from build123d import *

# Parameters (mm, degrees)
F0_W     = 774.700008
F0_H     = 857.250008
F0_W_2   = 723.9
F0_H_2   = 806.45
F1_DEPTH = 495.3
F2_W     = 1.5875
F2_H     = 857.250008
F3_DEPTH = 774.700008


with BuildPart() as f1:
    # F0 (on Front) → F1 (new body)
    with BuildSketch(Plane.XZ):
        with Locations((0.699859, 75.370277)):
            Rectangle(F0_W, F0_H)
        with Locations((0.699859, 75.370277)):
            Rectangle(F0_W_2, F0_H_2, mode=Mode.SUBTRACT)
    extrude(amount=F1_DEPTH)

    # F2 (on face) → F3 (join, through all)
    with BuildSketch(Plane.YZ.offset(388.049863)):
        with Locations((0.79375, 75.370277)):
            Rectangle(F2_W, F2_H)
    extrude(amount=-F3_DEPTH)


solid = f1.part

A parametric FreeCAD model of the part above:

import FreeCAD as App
import Part
import Sketcher

V = App.Vector
Q = App.Units.Quantity


def add_polygon(sketch, points):
    """Adds a closed chain of lines whose ends are joined by coincident constraints."""
    first, n = sketch.GeometryCount, len(points)
    for a, b in zip(points, points[1:] + points[:1]):
        sketch.addGeometry(Part.LineSegment(App.Vector(*a, 0), App.Vector(*b, 0)), False)
    for i in range(n):
        sketch.addConstraint(Sketcher.Constraint("Coincident", first + i, 2, first + (i + 1) % n, 1))

doc = App.newDocument("Part")
body = doc.addObject("PartDesign::Body", "Body")

# Sketch on XZ plane
sketch1 = body.newObject("Sketcher::SketchObject", "Sketch")
sketch1.AttachmentSupport = (doc.getObject("XZ_Plane"), [""])
sketch1.MapMode = "FlatFace"
add_polygon(sketch1, [(-387, 504), (-387, -353), (388, -353), (388, 504)])  # lines 0-3
add_polygon(sketch1, [(363, -328), (-361, -328), (-361, 479), (363, 479)])  # lines 4-7
sketch1.addConstraint([
    Sketcher.Constraint("Vertical", 0),
    Sketcher.Constraint("Horizontal", 1),
    Sketcher.Constraint("Vertical", 2),
    Sketcher.Constraint("Horizontal", 3),
    Sketcher.Constraint("Horizontal", 4),
    Sketcher.Constraint("Vertical", 5),
    Sketcher.Constraint("Horizontal", 6),
    Sketcher.Constraint("Vertical", 7),
    Sketcher.Constraint("DistanceX", 4, 2, 4, 1, Q("28.5 in")),
    Sketcher.Constraint("DistanceX", 0, 2, 4, 2, Q("1.0000002 in")),
    Sketcher.Constraint("DistanceY", 0, 2, 4, 2, Q("1.0000002 in")),
    Sketcher.Constraint("DistanceY", 5, 2, 3, 2, Q("1.0000002 in")),
    Sketcher.Constraint("DistanceX", 6, 2, 2, 2, Q("1.0000002 in")),
    Sketcher.Constraint("DistanceY", 5, 1, 5, 2, Q("31.75 in")),
    Sketcher.Constraint("DistanceY", -1, 1, 2, 2, Q("503.995281 mm")),
    Sketcher.Constraint("DistanceX", 4, 2, -1, 1, Q("361.250141 mm")),
])
pad1 = body.newObject("PartDesign::Pad", "Pad")
pad1.Profile = sketch1
pad1.Length = Q("19.5 in")

# Sketch on YZ plane
sketch2 = body.newObject("Sketcher::SketchObject", "Sketch001")
sketch2.AttachmentSupport = (doc.getObject("YZ_Plane"), [""])
sketch2.MapMode = "FlatFace"
sketch2.AttachmentOffset = App.Placement(V(0, 0, 388.049863), App.Rotation())
add_polygon(sketch2, [(0, 504), (0, -353.3), (1.6, -353.3), (1.6, 504)])  # lines 0-3
sketch2.addConstraint([
    Sketcher.Constraint("Vertical", 0),
    Sketcher.Constraint("Horizontal", 1),
    Sketcher.Constraint("Vertical", 2),
    Sketcher.Constraint("Horizontal", 3),
    Sketcher.Constraint("PointOnObject", 0, 2, -2),
    Sketcher.Constraint("DistanceX", 1, 1, 1, 2, Q("0.0625 in")),
    Sketcher.Constraint("DistanceY", 0, 2, 0, 1, Q("857.250008 mm")),
    Sketcher.Constraint("DistanceY", -1, 1, 2, 2, Q("503.995281 mm")),
])
pad2 = body.newObject("PartDesign::Pad", "Pad001")
pad2.Profile = sketch2
pad2.Length = 774.700008
pad2.Reversed = True

doc.recompute()
